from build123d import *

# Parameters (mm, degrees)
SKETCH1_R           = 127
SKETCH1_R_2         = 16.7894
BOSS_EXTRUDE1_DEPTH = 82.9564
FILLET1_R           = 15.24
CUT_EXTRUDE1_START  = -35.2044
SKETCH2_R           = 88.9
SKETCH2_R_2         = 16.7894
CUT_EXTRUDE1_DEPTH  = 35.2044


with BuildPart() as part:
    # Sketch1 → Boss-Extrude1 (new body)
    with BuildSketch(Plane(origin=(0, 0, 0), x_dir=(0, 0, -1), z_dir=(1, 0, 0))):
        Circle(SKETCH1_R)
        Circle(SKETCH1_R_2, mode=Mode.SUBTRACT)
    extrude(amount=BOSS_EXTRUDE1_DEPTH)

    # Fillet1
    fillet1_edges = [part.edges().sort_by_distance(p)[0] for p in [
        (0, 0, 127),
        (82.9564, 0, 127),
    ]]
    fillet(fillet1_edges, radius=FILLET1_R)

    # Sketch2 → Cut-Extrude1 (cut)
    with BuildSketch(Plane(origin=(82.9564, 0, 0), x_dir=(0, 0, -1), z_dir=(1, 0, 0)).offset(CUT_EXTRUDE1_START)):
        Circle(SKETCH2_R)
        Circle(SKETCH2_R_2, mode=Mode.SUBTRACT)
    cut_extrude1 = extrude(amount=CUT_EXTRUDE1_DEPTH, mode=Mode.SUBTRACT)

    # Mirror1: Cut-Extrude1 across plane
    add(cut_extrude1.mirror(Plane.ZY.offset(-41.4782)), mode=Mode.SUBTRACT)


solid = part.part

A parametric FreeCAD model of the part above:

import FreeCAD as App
import Part
import Sketcher

V = App.Vector
Q = App.Units.Quantity


def edges_at(feature, points):
    """Names of the edges that pass closest to the given points."""
    edges = feature.Shape.Edges
    near = lambda p: min(range(len(edges)), key=lambda i: edges[i].distToShape(Part.Vertex(*p))[0])
    return sorted({f"Edge{near(p) + 1}" for p in points})

doc = App.newDocument("Part")
params = doc.addObject("Spreadsheet::Sheet", "Params")
for row, (alias, value) in enumerate([
    ("sketch1_diameter", "10 in"),
    ("sketch1_diameter2", "1.322 in"),
    ("pad1_length", "3.266 in"),
    ("fillet_radius", "0.6 in"),
    ("sketch2_diameter", "7 in"),
    ("sketch2_diameter2", "1.322 in"),
    ("pocket1_length", "1.386 in"),
], start=1):
    params.set(f"A{row}", alias)
    params.set(f"B{row}", "=" + value)
    params.setAlias(f"B{row}", alias)

body = doc.addObject("PartDesign::Body", "Body")

# Sketch on YZ plane
sketch1 = doc.addObject("Sketcher::SketchObject", "Sketch")
body.addObject(sketch1)
sketch1.AttachmentSupport = (doc.YZ_Plane, [""])
sketch1.MapMode = "FlatFace"
sketch1.addGeometry(Part.Circle(V(0, 0, 0), V(0, 0, 1), 127), False)
sketch1.addGeometry(Part.Circle(V(0, 0, 0), V(0, 0, 1), 16.7894), False)
sketch1.addConstraint(Sketcher.Constraint("Coincident", 0, 3, -1, 1))
sketch1.addConstraint(Sketcher.Constraint("Coincident", 1, 3, -1, 1))
sketch1.addConstraint(Sketcher.Constraint("Diameter", 0, Q("10 in")))
sketch1.addConstraint(Sketcher.Constraint("Diameter", 1, Q("1.322 in")))
sketch1.setExpression("Constraints[2]", "Params.sketch1_diameter")
sketch1.setExpression("Constraints[3]", "Params.sketch1_diameter2")
pad1 = doc.addObject("PartDesign::Pad", "Pad")
body.addObject(pad1)
pad1.Profile = sketch1
pad1.setExpression("Length", "Params.pad1_length")
doc.recompute()

fillet = doc.addObject("PartDesign::Fillet", "Fillet")
body.addObject(fillet)
fillet.Base = (pad1, edges_at(pad1, [(0, 0, 127), (82.956, 0, 127)]))
fillet.setExpression("Radius", "Params.fillet_radius")

# Sketch on YZ plane
sketch2 = doc.addObject("Sketcher::SketchObject", "Sketch001")
body.addObject(sketch2)
sketch2.AttachmentSupport = (doc.YZ_Plane, [""])
sketch2.MapMode = "FlatFace"
sketch2.AttachmentOffset = App.Placement(V(0, 0, 1.88 * 25.4), App.Rotation())
sketch2.addGeometry(Part.Circle(V(0, 0, 0), V(0, 0, 1), 88.9), False)
sketch2.addGeometry(Part.Circle(V(0, 0, 0), V(0, 0, 1), 16.7894), False)
sketch2.addConstraint(Sketcher.Constraint("Coincident", 0, 3, -1, 1))
sketch2.addConstraint(Sketcher.Constraint("Coincident", 1, 3, -1, 1))
sketch2.addConstraint(Sketcher.Constraint("Diameter", 0, Q("7 in")))
sketch2.addConstraint(Sketcher.Constraint("Diameter", 1, Q("1.322 in")))
sketch2.setExpression("Constraints[2]", "Params.sketch2_diameter")
sketch2.setExpression("Constraints[3]", "Params.sketch2_diameter2")
pocket1 = doc.addObject("PartDesign::Pocket", "Pocket")
body.addObject(pocket1)
pocket1.Profile = sketch2
pocket1.setExpression("Length", "Params.pocket1_length")
pocket1.Reversed = True
doc.recompute()

datumplane = doc.addObject("PartDesign::Plane", "DatumPlane")
body.addObject(datumplane)
datumplane.AttachmentSupport = (doc.YZ_Plane, [""])
datumplane.MapMode = "FlatFace"
datumplane.AttachmentOffset = App.Placement(V(0, 0, 1.633 * 25.4), App.Rotation())
mirrored = doc.addObject("PartDesign::Mirrored", "Mirrored")
body.addObject(mirrored)
mirrored.Originals = [pocket1]
mirrored.MirrorPlane = (datumplane, [""])
body.Tip = mirrored

doc.recompute()
